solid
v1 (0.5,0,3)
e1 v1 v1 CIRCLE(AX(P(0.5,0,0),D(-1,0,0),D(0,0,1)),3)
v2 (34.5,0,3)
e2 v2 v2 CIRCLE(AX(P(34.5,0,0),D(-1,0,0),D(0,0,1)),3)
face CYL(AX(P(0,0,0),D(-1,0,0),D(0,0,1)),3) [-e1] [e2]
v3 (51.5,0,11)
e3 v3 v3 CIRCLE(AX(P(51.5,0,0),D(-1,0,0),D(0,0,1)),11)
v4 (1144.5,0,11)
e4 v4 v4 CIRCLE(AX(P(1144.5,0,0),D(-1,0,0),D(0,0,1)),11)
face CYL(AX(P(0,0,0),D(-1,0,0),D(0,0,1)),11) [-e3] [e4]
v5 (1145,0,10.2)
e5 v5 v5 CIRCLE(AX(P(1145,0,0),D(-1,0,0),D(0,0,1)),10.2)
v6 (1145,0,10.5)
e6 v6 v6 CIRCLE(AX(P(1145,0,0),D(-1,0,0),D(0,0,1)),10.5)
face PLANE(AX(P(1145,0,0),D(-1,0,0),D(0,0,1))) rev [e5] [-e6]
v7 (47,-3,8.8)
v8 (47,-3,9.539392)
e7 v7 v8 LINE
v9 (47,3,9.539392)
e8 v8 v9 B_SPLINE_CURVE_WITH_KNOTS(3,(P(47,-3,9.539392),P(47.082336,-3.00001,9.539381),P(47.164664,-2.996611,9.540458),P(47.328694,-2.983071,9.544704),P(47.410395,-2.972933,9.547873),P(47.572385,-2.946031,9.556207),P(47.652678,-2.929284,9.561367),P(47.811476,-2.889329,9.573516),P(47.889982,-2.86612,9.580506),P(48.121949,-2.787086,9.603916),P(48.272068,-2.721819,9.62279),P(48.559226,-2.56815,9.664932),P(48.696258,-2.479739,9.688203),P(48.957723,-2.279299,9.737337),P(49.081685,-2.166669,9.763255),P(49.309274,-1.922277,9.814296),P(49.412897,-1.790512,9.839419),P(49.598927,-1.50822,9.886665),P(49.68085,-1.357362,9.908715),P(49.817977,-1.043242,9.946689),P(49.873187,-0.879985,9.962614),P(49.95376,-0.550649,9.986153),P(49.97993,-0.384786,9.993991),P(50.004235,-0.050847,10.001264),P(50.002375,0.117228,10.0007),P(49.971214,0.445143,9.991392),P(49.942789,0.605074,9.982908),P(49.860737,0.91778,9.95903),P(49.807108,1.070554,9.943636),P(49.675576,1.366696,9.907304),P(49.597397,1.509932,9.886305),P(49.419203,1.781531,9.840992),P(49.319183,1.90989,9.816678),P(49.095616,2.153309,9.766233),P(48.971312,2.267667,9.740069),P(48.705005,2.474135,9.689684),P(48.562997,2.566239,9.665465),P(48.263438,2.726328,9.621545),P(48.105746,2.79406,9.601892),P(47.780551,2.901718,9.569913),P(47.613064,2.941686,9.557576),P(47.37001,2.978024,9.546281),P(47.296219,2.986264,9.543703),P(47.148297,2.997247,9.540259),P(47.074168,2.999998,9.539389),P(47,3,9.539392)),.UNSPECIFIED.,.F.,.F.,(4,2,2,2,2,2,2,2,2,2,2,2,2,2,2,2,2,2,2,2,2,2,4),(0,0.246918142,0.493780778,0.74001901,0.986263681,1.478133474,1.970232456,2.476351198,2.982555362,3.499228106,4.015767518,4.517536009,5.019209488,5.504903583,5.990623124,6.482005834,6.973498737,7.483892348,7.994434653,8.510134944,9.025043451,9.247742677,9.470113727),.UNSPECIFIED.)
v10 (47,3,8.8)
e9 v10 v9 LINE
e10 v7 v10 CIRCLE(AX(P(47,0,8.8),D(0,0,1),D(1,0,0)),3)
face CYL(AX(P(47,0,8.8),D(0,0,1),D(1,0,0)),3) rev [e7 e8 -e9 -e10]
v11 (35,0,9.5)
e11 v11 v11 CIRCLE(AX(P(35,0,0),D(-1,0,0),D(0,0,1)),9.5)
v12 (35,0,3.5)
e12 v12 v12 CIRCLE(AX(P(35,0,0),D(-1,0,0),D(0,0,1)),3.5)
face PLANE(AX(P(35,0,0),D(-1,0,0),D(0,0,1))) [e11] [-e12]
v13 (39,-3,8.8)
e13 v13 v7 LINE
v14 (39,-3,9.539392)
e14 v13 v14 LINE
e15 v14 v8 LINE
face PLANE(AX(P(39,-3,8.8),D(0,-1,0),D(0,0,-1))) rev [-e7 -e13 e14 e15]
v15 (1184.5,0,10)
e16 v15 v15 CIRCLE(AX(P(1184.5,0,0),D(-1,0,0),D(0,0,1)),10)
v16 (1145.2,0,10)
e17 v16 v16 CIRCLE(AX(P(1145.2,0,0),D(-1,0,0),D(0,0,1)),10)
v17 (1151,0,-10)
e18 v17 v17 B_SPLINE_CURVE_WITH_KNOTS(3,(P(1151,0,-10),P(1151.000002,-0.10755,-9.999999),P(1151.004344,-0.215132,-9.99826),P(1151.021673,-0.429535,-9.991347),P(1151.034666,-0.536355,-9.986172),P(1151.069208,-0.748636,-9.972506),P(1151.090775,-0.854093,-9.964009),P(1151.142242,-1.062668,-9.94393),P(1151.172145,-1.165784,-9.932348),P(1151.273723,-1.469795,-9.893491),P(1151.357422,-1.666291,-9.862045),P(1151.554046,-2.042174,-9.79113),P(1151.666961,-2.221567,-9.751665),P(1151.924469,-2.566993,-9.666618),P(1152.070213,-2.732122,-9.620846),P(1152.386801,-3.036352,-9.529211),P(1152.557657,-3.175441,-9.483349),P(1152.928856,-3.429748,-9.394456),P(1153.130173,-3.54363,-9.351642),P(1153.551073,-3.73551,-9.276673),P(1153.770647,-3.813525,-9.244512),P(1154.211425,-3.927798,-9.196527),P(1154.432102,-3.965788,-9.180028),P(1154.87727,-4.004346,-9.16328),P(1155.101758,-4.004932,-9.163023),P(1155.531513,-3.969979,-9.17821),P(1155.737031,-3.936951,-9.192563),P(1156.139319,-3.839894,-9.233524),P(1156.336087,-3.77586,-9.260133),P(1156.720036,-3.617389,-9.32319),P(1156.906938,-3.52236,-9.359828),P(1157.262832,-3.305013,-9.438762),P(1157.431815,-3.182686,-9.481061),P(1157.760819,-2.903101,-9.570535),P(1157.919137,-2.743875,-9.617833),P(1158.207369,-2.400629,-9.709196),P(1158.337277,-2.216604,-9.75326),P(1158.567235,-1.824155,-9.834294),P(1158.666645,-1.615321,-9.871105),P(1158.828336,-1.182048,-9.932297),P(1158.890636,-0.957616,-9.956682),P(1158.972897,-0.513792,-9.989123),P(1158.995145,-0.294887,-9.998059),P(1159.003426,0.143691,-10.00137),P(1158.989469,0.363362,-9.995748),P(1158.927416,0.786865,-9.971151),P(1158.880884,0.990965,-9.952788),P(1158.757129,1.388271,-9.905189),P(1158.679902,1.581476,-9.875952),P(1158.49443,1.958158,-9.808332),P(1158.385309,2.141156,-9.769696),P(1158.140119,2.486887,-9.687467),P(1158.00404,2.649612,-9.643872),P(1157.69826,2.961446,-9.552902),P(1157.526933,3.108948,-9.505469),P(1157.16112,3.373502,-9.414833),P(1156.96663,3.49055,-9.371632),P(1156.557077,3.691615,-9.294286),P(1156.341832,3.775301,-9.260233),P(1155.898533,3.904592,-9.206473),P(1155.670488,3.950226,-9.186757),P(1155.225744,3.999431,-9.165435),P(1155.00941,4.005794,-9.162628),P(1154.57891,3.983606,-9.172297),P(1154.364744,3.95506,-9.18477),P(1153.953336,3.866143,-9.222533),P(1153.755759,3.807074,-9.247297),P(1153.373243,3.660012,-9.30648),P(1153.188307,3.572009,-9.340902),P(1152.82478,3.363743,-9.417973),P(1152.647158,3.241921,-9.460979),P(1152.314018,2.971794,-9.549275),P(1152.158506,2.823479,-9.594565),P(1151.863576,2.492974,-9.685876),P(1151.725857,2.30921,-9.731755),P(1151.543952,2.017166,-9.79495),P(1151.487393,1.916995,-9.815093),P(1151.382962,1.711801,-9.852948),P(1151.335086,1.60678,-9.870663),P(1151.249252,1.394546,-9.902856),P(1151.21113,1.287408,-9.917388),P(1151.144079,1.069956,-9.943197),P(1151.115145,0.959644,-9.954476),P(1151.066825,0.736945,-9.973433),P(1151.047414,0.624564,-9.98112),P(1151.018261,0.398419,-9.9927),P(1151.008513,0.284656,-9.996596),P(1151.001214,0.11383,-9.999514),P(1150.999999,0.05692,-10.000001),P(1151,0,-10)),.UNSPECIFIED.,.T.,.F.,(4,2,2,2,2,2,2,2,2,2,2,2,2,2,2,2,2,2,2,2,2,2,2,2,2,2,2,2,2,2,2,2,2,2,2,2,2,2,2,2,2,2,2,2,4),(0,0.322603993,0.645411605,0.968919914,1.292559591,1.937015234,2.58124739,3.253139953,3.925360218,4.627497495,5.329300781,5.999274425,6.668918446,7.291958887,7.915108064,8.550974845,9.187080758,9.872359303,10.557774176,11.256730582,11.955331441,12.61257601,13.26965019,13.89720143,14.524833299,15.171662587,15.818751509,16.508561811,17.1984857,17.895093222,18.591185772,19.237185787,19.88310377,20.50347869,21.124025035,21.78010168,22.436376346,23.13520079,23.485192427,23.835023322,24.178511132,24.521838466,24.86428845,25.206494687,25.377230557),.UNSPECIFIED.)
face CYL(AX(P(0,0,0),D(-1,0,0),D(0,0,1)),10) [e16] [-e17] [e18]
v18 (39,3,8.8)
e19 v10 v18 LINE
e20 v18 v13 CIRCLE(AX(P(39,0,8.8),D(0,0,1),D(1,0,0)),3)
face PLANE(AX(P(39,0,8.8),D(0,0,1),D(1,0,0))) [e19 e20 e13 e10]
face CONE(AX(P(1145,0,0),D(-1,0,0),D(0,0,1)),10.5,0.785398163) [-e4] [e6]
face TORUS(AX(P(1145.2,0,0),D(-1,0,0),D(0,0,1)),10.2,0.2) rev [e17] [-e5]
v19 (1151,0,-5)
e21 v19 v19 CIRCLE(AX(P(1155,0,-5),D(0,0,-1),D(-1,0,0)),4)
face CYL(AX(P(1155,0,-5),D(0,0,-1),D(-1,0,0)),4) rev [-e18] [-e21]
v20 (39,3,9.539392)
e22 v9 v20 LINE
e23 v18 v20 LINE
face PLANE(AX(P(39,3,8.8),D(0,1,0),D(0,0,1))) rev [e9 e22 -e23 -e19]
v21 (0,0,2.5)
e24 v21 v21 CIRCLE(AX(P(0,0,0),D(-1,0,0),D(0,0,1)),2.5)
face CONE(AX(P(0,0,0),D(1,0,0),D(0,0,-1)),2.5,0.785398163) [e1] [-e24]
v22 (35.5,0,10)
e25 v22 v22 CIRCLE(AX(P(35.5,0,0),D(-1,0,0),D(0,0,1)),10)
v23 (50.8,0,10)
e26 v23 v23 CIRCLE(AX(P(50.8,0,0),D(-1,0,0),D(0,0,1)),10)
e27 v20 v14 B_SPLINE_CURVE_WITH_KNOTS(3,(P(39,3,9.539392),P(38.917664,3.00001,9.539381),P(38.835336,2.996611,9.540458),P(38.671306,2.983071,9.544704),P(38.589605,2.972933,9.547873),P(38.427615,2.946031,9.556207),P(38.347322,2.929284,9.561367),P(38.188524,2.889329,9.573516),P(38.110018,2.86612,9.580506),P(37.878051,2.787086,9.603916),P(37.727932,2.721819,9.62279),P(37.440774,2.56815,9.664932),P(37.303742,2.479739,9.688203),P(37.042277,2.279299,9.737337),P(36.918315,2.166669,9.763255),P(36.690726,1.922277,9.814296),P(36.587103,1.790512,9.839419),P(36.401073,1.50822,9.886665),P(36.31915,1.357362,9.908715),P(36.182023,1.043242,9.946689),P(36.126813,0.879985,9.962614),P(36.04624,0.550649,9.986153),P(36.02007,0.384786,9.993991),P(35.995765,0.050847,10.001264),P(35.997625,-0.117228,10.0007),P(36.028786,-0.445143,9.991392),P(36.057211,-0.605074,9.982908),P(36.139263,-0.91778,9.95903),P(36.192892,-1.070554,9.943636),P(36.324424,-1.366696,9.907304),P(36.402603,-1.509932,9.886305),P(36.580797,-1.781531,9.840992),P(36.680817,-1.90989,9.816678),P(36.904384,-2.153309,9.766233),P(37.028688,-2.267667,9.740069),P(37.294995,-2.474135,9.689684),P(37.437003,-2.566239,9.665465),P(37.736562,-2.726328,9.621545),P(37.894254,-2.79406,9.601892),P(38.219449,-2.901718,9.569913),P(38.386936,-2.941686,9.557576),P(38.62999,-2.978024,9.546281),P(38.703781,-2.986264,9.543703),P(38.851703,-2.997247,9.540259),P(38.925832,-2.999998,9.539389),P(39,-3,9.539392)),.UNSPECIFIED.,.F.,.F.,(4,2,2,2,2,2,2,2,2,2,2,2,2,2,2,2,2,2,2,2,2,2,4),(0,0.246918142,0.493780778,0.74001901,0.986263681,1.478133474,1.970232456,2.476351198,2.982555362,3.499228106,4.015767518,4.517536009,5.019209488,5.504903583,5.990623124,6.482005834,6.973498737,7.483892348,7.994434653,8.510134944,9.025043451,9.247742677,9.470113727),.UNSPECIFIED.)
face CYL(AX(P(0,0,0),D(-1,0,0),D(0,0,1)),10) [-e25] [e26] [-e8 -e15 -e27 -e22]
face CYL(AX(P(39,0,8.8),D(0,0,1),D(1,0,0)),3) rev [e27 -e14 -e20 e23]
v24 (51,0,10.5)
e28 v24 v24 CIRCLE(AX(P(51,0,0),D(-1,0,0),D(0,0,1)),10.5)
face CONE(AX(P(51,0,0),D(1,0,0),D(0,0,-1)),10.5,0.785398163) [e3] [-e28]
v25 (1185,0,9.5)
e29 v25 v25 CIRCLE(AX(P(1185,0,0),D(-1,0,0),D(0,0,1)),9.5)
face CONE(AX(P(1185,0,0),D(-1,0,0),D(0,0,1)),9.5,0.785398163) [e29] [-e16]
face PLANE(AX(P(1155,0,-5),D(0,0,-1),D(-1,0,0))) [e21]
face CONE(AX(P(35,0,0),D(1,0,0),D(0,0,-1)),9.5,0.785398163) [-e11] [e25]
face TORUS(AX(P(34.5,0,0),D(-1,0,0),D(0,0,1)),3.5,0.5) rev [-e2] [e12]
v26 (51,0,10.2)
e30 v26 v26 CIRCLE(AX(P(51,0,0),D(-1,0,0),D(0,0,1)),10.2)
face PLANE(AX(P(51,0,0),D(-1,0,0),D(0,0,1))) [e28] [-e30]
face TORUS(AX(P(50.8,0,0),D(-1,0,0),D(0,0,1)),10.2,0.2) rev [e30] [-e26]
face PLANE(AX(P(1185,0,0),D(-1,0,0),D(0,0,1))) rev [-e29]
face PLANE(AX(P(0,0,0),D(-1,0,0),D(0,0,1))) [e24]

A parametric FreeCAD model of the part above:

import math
import FreeCAD as App
import Part
import Sketcher
from FreeCAD import Vector

doc = App.newDocument("Part")
body = doc.addObject("PartDesign::Body", "Body")

sketch1 = body.newObject("Sketcher::SketchObject", "Sketch")
sketch1.AttachmentSupport = (doc.getObject("XY_Plane"), [""])
sketch1.MapMode = "FlatFace"
sketch1.addGeometry([
    Part.LineSegment(Vector(51, 10.5, 0), Vector(51, 10.2, 0)),
    Part.ArcOfCircle(Part.Circle(Vector(50.8, 10.2, 0), Vector(0, 0, 1), 0.2), math.radians(-90), math.radians(0)),
    Part.LineSegment(Vector(50.8, 10, 0), Vector(35.5, 10, 0)),
    Part.LineSegment(Vector(35.5, 10, 0), Vector(35, 9.5, 0)),
    Part.LineSegment(Vector(35, 9.5, 0), Vector(35, 3.5, 0)),
    Part.ArcOfCircle(Part.Circle(Vector(34.5, 3.5, 0), Vector(0, 0, 1), 0.5), math.radians(-90), math.radians(0)),
    Part.LineSegment(Vector(34.5, 3, 0), Vector(0.5, 3, 0)),
    Part.LineSegment(Vector(0.5, 3, 0), Vector(0, 2.5, 0)),
    Part.LineSegment(Vector(0, 2.5, 0), Vector(0, 0, 0)),
    Part.LineSegment(Vector(0, 0, 0), Vector(1185, 0, 0)),
    Part.LineSegment(Vector(1185, 0, 0), Vector(1185, 9.5, 0)),
    Part.LineSegment(Vector(1185, 9.5, 0), Vector(1184.5, 10, 0)),
    Part.LineSegment(Vector(1184.5, 10, 0), Vector(1145.2, 10, 0)),
    Part.ArcOfCircle(Part.Circle(Vector(1145.2, 10.2, 0), Vector(0, 0, 1), 0.2), math.radians(-180), math.radians(-90)),
    Part.LineSegment(Vector(1145, 10.2, 0), Vector(1145, 10.5, 0)),
    Part.LineSegment(Vector(1145, 10.5, 0), Vector(1144.5, 11, 0)),
    Part.LineSegment(Vector(1144.5, 11, 0), Vector(51.5, 11, 0)),
    Part.LineSegment(Vector(51.5, 11, 0), Vector(51, 10.5, 0)),
], False)
sketch1.addConstraint([
    Sketcher.Constraint("Tangent", 0, 2, 1, 2),
    Sketcher.Constraint("Tangent", 1, 1, 2, 1),
    Sketcher.Constraint("Coincident", 2, 2, 3, 1),
    Sketcher.Constraint("Coincident", 3, 2, 4, 1),
    Sketcher.Constraint("Tangent", 4, 2, 5, 2),
    Sketcher.Constraint("Tangent", 5, 1, 6, 1),
    Sketcher.Constraint("Coincident", 6, 2, 7, 1),
    Sketcher.Constraint("Coincident", 7, 2, 8, 1),
    Sketcher.Constraint("Coincident", 8, 2, 9, 1),
    Sketcher.Constraint("Coincident", 9, 2, 10, 1),
    Sketcher.Constraint("Coincident", 10, 2, 11, 1),
    Sketcher.Constraint("Coincident", 11, 2, 12, 1),
    Sketcher.Constraint("Tangent", 12, 2, 13, 2),
    Sketcher.Constraint("Tangent", 13, 1, 14, 1),
    Sketcher.Constraint("Coincident", 14, 2, 15, 1),
    Sketcher.Constraint("Coincident", 15, 2, 16, 1),
    Sketcher.Constraint("Coincident", 16, 2, 17, 1),
    Sketcher.Constraint("Coincident", 17, 2, 0, 1),
    Sketcher.Constraint("Vertical", 0),
    Sketcher.Constraint("Horizontal", 2),
    Sketcher.Constraint("Vertical", 4),
    Sketcher.Constraint("Horizontal", 6),
    Sketcher.Constraint("Vertical", 8),
    Sketcher.Constraint("Horizontal", 9),
    Sketcher.Constraint("Vertical", 10),
    Sketcher.Constraint("Horizontal", 12),
    Sketcher.Constraint("Vertical", 14),
    Sketcher.Constraint("Horizontal", 16),
    Sketcher.Constraint("Coincident", 8, 2, -1, 1),
    Sketcher.Constraint("Equal", 1, 13),
    Sketcher.Constraint("Parallel", 3, 7),
    Sketcher.Constraint("Perpendicular", 7, 11),
    Sketcher.Constraint("Parallel", 11, 15),
    Sketcher.Constraint("Perpendicular", 15, 17),
    Sketcher.Constraint("Horizontal", 1, 3, 13, 3),
    Sketcher.Constraint("Horizontal", 3, 2, 10, 2),
    Sketcher.Constraint("Horizontal", 14, 2, 17, 2),
    Sketcher.Constraint("Equal", 3, 7),
    Sketcher.Constraint("Equal", 7, 11),
    Sketcher.Constraint("Equal", 11, 15),
    Sketcher.Constraint("Radius", 1, 0.2),
    Sketcher.Constraint("Radius", 5, 0.5),
    Sketcher.Constraint("DistanceX", 6, 2, 6, 1, 34.0),
    Sketcher.Constraint("DistanceX", 9, 1, 9, 2, 1185.0),
    Sketcher.Constraint("DistanceX", 16, 2, 16, 1, 1093.0),
    Sketcher.Constraint("DistanceY", 4, 2, 4, 1, 6.0),
    Sketcher.Constraint("DistanceX", 2, 2, 2, 1, 15.3),
    Sketcher.Constraint("DistanceX", 12, 2, 12, 1, 39.3),
    Sketcher.Constraint("DistanceY", 0, 2, 0, 1, 0.3),
    Sketcher.Constraint("DistanceY", 8, 2, 8, 1, 2.5),
])
revolution = body.newObject("PartDesign::Revolution", "Revolution")
revolution.Profile = sketch1
revolution.ReferenceAxis = (sketch1, ["H_Axis"])
revolution.Angle = 360

sketch2 = body.newObject("Sketcher::SketchObject", "Sketch001")
sketch2.AttachmentSupport = (doc.getObject("XY_Plane"), [""])
sketch2.MapMode = "FlatFace"
sketch2.AttachmentOffset = App.Placement(Vector(0, 0, 10), App.Rotation())
sketch2.addGeometry([
    Part.LineSegment(Vector(47, 3, 0), Vector(39, 3, 0)),
    Part.ArcOfCircle(Part.Circle(Vector(39, 0, 0), Vector(0, 0, 1), 3), math.radians(90), math.radians(270)),
    Part.LineSegment(Vector(39, -3, 0), Vector(47, -3, 0)),
    Part.ArcOfCircle(Part.Circle(Vector(47, 0, 0), Vector(0, 0, 1), 3), math.radians(-90), math.radians(90)),
], False)
sketch2.addConstraint([
    Sketcher.Constraint("Tangent", 0, 2, 1, 1),
    Sketcher.Constraint("Tangent", 1, 2, 2, 1),
    Sketcher.Constraint("Tangent", 2, 2, 3, 1),
    Sketcher.Constraint("Tangent", 3, 2, 0, 1),
    Sketcher.Constraint("Horizontal", 0),
    Sketcher.Constraint("Horizontal", 2),
    Sketcher.Constraint("PointOnObject", 1, 3, -1),
    Sketcher.Constraint("Radius", 1, 3.0),
    Sketcher.Constraint("DistanceX", 0, 2, 0, 1, 8.0),
    Sketcher.Constraint("DistanceX", -1, 1, 1, 3, 39.0),
])
pocket1 = body.newObject("PartDesign::Pocket", "Pocket")
pocket1.Profile = sketch2
pocket1.Length = 1.2

sketch3 = body.newObject("Sketcher::SketchObject", "Sketch002")
sketch3.AttachmentSupport = (doc.getObject("XY_Plane"), [""])
sketch3.MapMode = "FlatFace"
sketch3.AttachmentOffset = App.Placement(Vector(0, 0, -10), App.Rotation())
sketch3.addGeometry(Part.Circle(Vector(1155, 0, 0), Vector(0, 0, 1), 4), False)
sketch3.addConstraint([
    Sketcher.Constraint("PointOnObject", 0, 3, -1),
    Sketcher.Constraint("Diameter", 0, 8.0),
    Sketcher.Constraint("DistanceX", -1, 1, 0, 3, 1155.0),
])
pocket2 = body.newObject("PartDesign::Pocket", "Pocket001")
pocket2.Profile = sketch3
pocket2.Length = 5
pocket2.Reversed = True

doc.recompute()
